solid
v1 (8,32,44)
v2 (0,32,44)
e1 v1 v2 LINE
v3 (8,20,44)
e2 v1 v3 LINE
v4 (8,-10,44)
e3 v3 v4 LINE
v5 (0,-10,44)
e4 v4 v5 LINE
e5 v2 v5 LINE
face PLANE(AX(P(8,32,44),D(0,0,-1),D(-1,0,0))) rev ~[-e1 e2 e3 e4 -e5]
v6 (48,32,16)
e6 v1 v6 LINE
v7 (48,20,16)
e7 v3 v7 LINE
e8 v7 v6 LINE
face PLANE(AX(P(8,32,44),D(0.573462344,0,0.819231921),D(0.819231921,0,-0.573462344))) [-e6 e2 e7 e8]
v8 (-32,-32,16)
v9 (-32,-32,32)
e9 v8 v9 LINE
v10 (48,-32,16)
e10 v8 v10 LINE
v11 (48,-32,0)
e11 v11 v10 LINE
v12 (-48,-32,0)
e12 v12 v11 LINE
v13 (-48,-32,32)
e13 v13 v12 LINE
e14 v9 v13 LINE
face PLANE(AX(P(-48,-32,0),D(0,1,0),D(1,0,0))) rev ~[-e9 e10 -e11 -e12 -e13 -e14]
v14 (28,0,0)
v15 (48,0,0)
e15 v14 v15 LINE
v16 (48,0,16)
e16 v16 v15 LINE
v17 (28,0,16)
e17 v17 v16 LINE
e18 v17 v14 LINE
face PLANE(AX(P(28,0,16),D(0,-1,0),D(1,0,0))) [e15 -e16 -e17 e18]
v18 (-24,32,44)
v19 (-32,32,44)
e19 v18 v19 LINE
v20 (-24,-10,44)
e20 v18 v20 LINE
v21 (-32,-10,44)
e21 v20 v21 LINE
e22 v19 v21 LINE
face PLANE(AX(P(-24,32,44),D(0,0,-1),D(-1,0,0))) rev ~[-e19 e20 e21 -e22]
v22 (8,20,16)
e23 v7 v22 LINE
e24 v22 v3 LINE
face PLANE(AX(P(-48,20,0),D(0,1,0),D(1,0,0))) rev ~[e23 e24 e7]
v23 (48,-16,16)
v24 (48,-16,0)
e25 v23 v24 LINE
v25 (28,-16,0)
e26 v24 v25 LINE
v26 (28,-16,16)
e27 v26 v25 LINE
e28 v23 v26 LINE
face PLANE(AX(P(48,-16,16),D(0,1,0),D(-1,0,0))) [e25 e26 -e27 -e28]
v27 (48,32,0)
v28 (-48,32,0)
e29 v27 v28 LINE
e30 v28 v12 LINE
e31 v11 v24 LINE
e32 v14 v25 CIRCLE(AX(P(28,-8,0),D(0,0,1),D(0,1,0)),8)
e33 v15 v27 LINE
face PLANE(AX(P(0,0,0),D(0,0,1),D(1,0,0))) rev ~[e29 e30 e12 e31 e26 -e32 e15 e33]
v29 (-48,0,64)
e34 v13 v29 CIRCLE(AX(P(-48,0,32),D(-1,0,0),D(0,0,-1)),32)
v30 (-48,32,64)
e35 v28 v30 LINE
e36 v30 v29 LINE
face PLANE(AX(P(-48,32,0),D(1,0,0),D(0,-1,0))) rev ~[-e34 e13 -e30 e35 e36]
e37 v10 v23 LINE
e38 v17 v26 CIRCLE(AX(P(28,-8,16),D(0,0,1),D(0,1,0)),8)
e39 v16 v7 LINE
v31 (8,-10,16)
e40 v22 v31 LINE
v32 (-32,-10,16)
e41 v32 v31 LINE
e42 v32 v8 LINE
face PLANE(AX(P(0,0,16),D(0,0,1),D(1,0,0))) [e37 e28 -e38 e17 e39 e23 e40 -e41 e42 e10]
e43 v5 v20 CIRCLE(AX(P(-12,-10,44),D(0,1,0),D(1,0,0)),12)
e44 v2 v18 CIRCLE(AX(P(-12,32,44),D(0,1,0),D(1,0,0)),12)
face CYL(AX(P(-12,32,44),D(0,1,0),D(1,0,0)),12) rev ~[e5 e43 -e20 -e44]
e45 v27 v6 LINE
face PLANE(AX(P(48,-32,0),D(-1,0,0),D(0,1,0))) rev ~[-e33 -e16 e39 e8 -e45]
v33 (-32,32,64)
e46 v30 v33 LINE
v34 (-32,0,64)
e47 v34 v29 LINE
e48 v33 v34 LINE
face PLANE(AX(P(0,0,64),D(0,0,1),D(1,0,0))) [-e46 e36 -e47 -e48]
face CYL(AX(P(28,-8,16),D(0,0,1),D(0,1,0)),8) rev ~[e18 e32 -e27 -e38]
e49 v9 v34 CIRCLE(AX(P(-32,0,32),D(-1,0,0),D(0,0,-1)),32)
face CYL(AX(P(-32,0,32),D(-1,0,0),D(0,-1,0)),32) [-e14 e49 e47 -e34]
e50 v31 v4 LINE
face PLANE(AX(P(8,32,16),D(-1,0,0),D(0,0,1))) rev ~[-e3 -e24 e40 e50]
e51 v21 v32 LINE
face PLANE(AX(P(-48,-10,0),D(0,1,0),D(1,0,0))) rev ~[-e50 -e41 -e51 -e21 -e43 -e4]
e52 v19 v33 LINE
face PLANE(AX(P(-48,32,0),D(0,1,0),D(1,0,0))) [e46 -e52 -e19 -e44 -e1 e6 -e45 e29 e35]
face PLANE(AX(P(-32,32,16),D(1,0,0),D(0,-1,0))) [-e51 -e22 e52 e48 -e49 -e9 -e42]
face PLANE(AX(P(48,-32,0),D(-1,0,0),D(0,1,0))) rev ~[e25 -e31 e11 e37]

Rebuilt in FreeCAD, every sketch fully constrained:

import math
import FreeCAD as App
import Part
import Sketcher

V = App.Vector
Q = App.Units.Quantity


def edges_at(feature, points):
    """Names of the edges that pass closest to the given points."""
    edges = feature.Shape.Edges
    near = lambda p: min(range(len(edges)), key=lambda i: edges[i].distToShape(Part.Vertex(*p))[0])
    return sorted({f"Edge{near(p) + 1}" for p in points})

doc = App.newDocument("Part")
params = doc.addObject("Spreadsheet::Sheet", "Params")
for row, (alias, value) in enumerate([
    ("sketch1_width", "96 mm"),
    ("sketch1_height", "64 mm"),
    ("pad1_length", "16 mm"),
    ("sketch2_width", "16 mm"),
    ("sketch2_height", "64 mm"),
    ("pad2_length", "48 mm"),
    ("fillet_radius", "32 mm"),
    ("sketch3_radius", "12 mm"),
    ("sketch3_width", "40 mm"),
    ("sketch3_height", "28 mm"),
    ("pad3_length", "42 mm"),
    ("sketch4_width", "40 mm"),
    ("sketch4_height", "28 mm"),
    ("pad4_length", "12 mm"),
    ("sketch5_radius", "8 mm"),
    ("sketch5_width", "20 mm"),
    ("pocket1_length", "16 mm"),
], start=1):
    params.set(f"A{row}", alias)
    params.set(f"B{row}", "=" + value)
    params.setAlias(f"B{row}", alias)

body = doc.addObject("PartDesign::Body", "Body")

sketch1 = body.newObject("Sketcher::SketchObject", "Sketch")
sketch1.AttachmentSupport = (doc.getObject("XY_Plane"), [""])
sketch1.MapMode = "FlatFace"
sketch1.addGeometry(Part.LineSegment(V(48, -32, 0), V(48, 32, 0)), False)
sketch1.addGeometry(Part.LineSegment(V(48, 32, 0), V(-48, 32, 0)), False)
sketch1.addGeometry(Part.LineSegment(V(-48, 32, 0), V(-48, -32, 0)), False)
sketch1.addGeometry(Part.LineSegment(V(-48, -32, 0), V(48, -32, 0)), False)
sketch1.addConstraint(Sketcher.Constraint("Coincident", 0, 2, 1, 1))
sketch1.addConstraint(Sketcher.Constraint("Coincident", 1, 2, 2, 1))
sketch1.addConstraint(Sketcher.Constraint("Coincident", 2, 2, 3, 1))
sketch1.addConstraint(Sketcher.Constraint("Coincident", 3, 2, 0, 1))
sketch1.addConstraint(Sketcher.Constraint("Vertical", 0))
sketch1.addConstraint(Sketcher.Constraint("Horizontal", 1))
sketch1.addConstraint(Sketcher.Constraint("Vertical", 2))
sketch1.addConstraint(Sketcher.Constraint("Horizontal", 3))
sketch1.addConstraint(Sketcher.Constraint("Symmetric", 0, 2, 2, 2, -1, 1))
sketch1.addConstraint(Sketcher.Constraint("DistanceX", 1, 2, 1, 1, Q("96 mm")))
sketch1.addConstraint(Sketcher.Constraint("DistanceY", 0, 1, 0, 2, Q("64 mm")))
sketch1.setExpression("Constraints[9]", "Params.sketch1_width")
sketch1.setExpression("Constraints[10]", "Params.sketch1_height")
pad1 = body.newObject("PartDesign::Pad", "Pad")
pad1.Profile = sketch1
pad1.setExpression("Length", "Params.pad1_length")

sketch2 = body.newObject("Sketcher::SketchObject", "Sketch001")
sketch2.AttachmentSupport = (doc.getObject("XY_Plane"), [""])
sketch2.MapMode = "FlatFace"
sketch2.AttachmentOffset = App.Placement(V(0, 0, 16), App.Rotation())
sketch2.addGeometry(Part.LineSegment(V(-32, 32, 0), V(-48, 32, 0)), False)
sketch2.addGeometry(Part.LineSegment(V(-48, 32, 0), V(-48, -32, 0)), False)
sketch2.addGeometry(Part.LineSegment(V(-48, -32, 0), V(-32, -32, 0)), False)
sketch2.addGeometry(Part.LineSegment(V(-32, -32, 0), V(-32, 32, 0)), False)
sketch2.addConstraint(Sketcher.Constraint("Coincident", 0, 2, 1, 1))
sketch2.addConstraint(Sketcher.Constraint("Coincident", 1, 2, 2, 1))
sketch2.addConstraint(Sketcher.Constraint("Coincident", 2, 2, 3, 1))
sketch2.addConstraint(Sketcher.Constraint("Coincident", 3, 2, 0, 1))
sketch2.addConstraint(Sketcher.Constraint("Horizontal", 0))
sketch2.addConstraint(Sketcher.Constraint("Vertical", 1))
sketch2.addConstraint(Sketcher.Constraint("Horizontal", 2))
sketch2.addConstraint(Sketcher.Constraint("Vertical", 3))
sketch2.addConstraint(Sketcher.Constraint("DistanceX", 0, 2, 0, 1, Q("16 mm")))
sketch2.addConstraint(Sketcher.Constraint("DistanceY", 1, 2, 1, 1, Q("64 mm")))
sketch2.addConstraint(Sketcher.Constraint("DistanceX", 0, 2, -1, 1, Q("48 mm")))
sketch2.addConstraint(Sketcher.Constraint("DistanceY", -1, 1, 0, 2, Q("32 mm")))
sketch2.setExpression("Constraints[8]", "Params.sketch2_width")
sketch2.setExpression("Constraints[9]", "Params.sketch2_height")
pad2 = body.newObject("PartDesign::Pad", "Pad001")
pad2.Profile = sketch2
pad2.setExpression("Length", "Params.pad2_length")
doc.recompute()

fillet = body.newObject("PartDesign::Fillet", "Fillet")
fillet.Base = (pad2, edges_at(pad2, [(-40, -32, 64)]))
fillet.setExpression("Radius", "Params.fillet_radius")

sketch3 = body.newObject("Sketcher::SketchObject", "Sketch002")
sketch3.AttachmentSupport = (doc.getObject("XZ_Plane"), [""])
sketch3.MapMode = "FlatFace"
sketch3.AttachmentOffset = App.Placement(V(0, 0, -32), App.Rotation())
sketch3.addGeometry(Part.LineSegment(V(8, 16, 0), V(-32, 16, 0)), False)
sketch3.addGeometry(Part.LineSegment(V(-32, 16, 0), V(-32, 44, 0)), False)
sketch3.addGeometry(Part.LineSegment(V(-32, 44, 0), V(-24, 44, 0)), False)
sketch3.addGeometry(Part.ArcOfCircle(Part.Circle(V(-12, 44, 0), V(0, 0, 1), 12), math.radians(180), math.radians(360)), False)
sketch3.addGeometry(Part.LineSegment(V(0, 44, 0), V(8, 44, 0)), False)
sketch3.addGeometry(Part.LineSegment(V(8, 44, 0), V(8, 16, 0)), False)
sketch3.addConstraint(Sketcher.Constraint("Coincident", 0, 2, 1, 1))
sketch3.addConstraint(Sketcher.Constraint("Coincident", 1, 2, 2, 1))
sketch3.addConstraint(Sketcher.Constraint("Coincident", 2, 2, 3, 1))
sketch3.addConstraint(Sketcher.Constraint("Coincident", 3, 2, 4, 1))
sketch3.addConstraint(Sketcher.Constraint("Coincident", 4, 2, 5, 1))
sketch3.addConstraint(Sketcher.Constraint("Coincident", 5, 2, 0, 1))
sketch3.addConstraint(Sketcher.Constraint("Horizontal", 0))
sketch3.addConstraint(Sketcher.Constraint("Vertical", 1))
sketch3.addConstraint(Sketcher.Constraint("Horizontal", 2))
sketch3.addConstraint(Sketcher.Constraint("Horizontal", 4))
sketch3.addConstraint(Sketcher.Constraint("Vertical", 5))
sketch3.addConstraint(Sketcher.Constraint("PointOnObject", 3, 2, -2))
sketch3.addConstraint(Sketcher.Constraint("Horizontal", 3, 3, 1, 2))
sketch3.addConstraint(Sketcher.Constraint("Horizontal", 2, 2, 3, 2))
sketch3.addConstraint(Sketcher.Constraint("Equal", 2, 4))
sketch3.addConstraint(Sketcher.Constraint("Radius", 3, Q("12 mm")))
sketch3.addConstraint(Sketcher.Constraint("DistanceX", 0, 2, 0, 1, Q("40 mm")))
sketch3.addConstraint(Sketcher.Constraint("DistanceY", 1, 1, 1, 2, Q("28 mm")))
sketch3.addConstraint(Sketcher.Constraint("DistanceY", -1, 1, 3, 3, Q("44 mm")))
sketch3.setExpression("Constraints[15]", "Params.sketch3_radius")
sketch3.setExpression("Constraints[16]", "Params.sketch3_width")
sketch3.setExpression("Constraints[17]", "Params.sketch3_height")
pad3 = body.newObject("PartDesign::Pad", "Pad002")
pad3.Profile = sketch3
pad3.setExpression("Length", "Params.pad3_length")

sketch4 = body.newObject("Sketcher::SketchObject", "Sketch003")
sketch4.AttachmentSupport = (doc.getObject("XZ_Plane"), [""])
sketch4.MapMode = "FlatFace"
sketch4.AttachmentOffset = App.Placement(V(0, 0, -32), App.Rotation())
sketch4.addGeometry(Part.LineSegment(V(8, 44, 0), V(48, 16, 0)), False)
sketch4.addGeometry(Part.LineSegment(V(48, 16, 0), V(8, 16, 0)), False)
sketch4.addGeometry(Part.LineSegment(V(8, 16, 0), V(8, 44, 0)), False)
sketch4.addConstraint(Sketcher.Constraint("Coincident", 0, 2, 1, 1))
sketch4.addConstraint(Sketcher.Constraint("Coincident", 1, 2, 2, 1))
sketch4.addConstraint(Sketcher.Constraint("Coincident", 2, 2, 0, 1))
sketch4.addConstraint(Sketcher.Constraint("Horizontal", 1))
sketch4.addConstraint(Sketcher.Constraint("Vertical", 2))
sketch4.addConstraint(Sketcher.Constraint("DistanceX", 1, 2, 1, 1, Q("40 mm")))
sketch4.addConstraint(Sketcher.Constraint("DistanceY", 2, 1, 2, 2, Q("28 mm")))
sketch4.addConstraint(Sketcher.Constraint("DistanceX", -1, 1, 0, 2, Q("48 mm")))
sketch4.addConstraint(Sketcher.Constraint("DistanceY", -1, 1, 0, 2, Q("16 mm")))
sketch4.setExpression("Constraints[5]", "Params.sketch4_width")
sketch4.setExpression("Constraints[6]", "Params.sketch4_height")
pad4 = body.newObject("PartDesign::Pad", "Pad003")
pad4.Profile = sketch4
pad4.setExpression("Length", "Params.pad4_length")

sketch5 = body.newObject("Sketcher::SketchObject", "Sketch004")
sketch5.AttachmentSupport = (doc.getObject("XY_Plane"), [""])
sketch5.MapMode = "FlatFace"
sketch5.AttachmentOffset = App.Placement(V(0, 0, 16), App.Rotation())
sketch5.addGeometry(Part.LineSegment(V(28, -16, 0), V(48, -16, 0)), False)
sketch5.addGeometry(Part.LineSegment(V(48, -16, 0), V(48, 0, 0)), False)
sketch5.addGeometry(Part.LineSegment(V(48, 0, 0), V(28, 0, 0)), False)
sketch5.addGeometry(Part.ArcOfCircle(Part.Circle(V(28, -8, 0), V(0, 0, 1), 8), math.radians(90), math.radians(270)), False)
sketch5.addConstraint(Sketcher.Constraint("Coincident", 0, 2, 1, 1))
sketch5.addConstraint(Sketcher.Constraint("Coincident", 1, 2, 2, 1))
sketch5.addConstraint(Sketcher.Constraint("Tangent", 2, 2, 3, 1))
sketch5.addConstraint(Sketcher.Constraint("Tangent", 3, 2, 0, 1))
sketch5.addConstraint(Sketcher.Constraint("Horizontal", 0))
sketch5.addConstraint(Sketcher.Constraint("Vertical", 1))
sketch5.addConstraint(Sketcher.Constraint("Horizontal", 2))
sketch5.addConstraint(Sketcher.Constraint("PointOnObject", 1, 2, -1))
sketch5.addConstraint(Sketcher.Constraint("Radius", 3, Q("8 mm")))
sketch5.addConstraint(Sketcher.Constraint("DistanceX", 0, 1, 0, 2, Q("20 mm")))
sketch5.addConstraint(Sketcher.Constraint("DistanceX", -1, 1, 3, 3, Q("28 mm")))
sketch5.setExpression("Constraints[8]", "Params.sketch5_radius")
sketch5.setExpression("Constraints[9]", "Params.sketch5_width")
pocket1 = body.newObject("PartDesign::Pocket", "Pocket")
pocket1.Profile = sketch5
pocket1.setExpression("Length", "Params.pocket1_length")

doc.recompute()
